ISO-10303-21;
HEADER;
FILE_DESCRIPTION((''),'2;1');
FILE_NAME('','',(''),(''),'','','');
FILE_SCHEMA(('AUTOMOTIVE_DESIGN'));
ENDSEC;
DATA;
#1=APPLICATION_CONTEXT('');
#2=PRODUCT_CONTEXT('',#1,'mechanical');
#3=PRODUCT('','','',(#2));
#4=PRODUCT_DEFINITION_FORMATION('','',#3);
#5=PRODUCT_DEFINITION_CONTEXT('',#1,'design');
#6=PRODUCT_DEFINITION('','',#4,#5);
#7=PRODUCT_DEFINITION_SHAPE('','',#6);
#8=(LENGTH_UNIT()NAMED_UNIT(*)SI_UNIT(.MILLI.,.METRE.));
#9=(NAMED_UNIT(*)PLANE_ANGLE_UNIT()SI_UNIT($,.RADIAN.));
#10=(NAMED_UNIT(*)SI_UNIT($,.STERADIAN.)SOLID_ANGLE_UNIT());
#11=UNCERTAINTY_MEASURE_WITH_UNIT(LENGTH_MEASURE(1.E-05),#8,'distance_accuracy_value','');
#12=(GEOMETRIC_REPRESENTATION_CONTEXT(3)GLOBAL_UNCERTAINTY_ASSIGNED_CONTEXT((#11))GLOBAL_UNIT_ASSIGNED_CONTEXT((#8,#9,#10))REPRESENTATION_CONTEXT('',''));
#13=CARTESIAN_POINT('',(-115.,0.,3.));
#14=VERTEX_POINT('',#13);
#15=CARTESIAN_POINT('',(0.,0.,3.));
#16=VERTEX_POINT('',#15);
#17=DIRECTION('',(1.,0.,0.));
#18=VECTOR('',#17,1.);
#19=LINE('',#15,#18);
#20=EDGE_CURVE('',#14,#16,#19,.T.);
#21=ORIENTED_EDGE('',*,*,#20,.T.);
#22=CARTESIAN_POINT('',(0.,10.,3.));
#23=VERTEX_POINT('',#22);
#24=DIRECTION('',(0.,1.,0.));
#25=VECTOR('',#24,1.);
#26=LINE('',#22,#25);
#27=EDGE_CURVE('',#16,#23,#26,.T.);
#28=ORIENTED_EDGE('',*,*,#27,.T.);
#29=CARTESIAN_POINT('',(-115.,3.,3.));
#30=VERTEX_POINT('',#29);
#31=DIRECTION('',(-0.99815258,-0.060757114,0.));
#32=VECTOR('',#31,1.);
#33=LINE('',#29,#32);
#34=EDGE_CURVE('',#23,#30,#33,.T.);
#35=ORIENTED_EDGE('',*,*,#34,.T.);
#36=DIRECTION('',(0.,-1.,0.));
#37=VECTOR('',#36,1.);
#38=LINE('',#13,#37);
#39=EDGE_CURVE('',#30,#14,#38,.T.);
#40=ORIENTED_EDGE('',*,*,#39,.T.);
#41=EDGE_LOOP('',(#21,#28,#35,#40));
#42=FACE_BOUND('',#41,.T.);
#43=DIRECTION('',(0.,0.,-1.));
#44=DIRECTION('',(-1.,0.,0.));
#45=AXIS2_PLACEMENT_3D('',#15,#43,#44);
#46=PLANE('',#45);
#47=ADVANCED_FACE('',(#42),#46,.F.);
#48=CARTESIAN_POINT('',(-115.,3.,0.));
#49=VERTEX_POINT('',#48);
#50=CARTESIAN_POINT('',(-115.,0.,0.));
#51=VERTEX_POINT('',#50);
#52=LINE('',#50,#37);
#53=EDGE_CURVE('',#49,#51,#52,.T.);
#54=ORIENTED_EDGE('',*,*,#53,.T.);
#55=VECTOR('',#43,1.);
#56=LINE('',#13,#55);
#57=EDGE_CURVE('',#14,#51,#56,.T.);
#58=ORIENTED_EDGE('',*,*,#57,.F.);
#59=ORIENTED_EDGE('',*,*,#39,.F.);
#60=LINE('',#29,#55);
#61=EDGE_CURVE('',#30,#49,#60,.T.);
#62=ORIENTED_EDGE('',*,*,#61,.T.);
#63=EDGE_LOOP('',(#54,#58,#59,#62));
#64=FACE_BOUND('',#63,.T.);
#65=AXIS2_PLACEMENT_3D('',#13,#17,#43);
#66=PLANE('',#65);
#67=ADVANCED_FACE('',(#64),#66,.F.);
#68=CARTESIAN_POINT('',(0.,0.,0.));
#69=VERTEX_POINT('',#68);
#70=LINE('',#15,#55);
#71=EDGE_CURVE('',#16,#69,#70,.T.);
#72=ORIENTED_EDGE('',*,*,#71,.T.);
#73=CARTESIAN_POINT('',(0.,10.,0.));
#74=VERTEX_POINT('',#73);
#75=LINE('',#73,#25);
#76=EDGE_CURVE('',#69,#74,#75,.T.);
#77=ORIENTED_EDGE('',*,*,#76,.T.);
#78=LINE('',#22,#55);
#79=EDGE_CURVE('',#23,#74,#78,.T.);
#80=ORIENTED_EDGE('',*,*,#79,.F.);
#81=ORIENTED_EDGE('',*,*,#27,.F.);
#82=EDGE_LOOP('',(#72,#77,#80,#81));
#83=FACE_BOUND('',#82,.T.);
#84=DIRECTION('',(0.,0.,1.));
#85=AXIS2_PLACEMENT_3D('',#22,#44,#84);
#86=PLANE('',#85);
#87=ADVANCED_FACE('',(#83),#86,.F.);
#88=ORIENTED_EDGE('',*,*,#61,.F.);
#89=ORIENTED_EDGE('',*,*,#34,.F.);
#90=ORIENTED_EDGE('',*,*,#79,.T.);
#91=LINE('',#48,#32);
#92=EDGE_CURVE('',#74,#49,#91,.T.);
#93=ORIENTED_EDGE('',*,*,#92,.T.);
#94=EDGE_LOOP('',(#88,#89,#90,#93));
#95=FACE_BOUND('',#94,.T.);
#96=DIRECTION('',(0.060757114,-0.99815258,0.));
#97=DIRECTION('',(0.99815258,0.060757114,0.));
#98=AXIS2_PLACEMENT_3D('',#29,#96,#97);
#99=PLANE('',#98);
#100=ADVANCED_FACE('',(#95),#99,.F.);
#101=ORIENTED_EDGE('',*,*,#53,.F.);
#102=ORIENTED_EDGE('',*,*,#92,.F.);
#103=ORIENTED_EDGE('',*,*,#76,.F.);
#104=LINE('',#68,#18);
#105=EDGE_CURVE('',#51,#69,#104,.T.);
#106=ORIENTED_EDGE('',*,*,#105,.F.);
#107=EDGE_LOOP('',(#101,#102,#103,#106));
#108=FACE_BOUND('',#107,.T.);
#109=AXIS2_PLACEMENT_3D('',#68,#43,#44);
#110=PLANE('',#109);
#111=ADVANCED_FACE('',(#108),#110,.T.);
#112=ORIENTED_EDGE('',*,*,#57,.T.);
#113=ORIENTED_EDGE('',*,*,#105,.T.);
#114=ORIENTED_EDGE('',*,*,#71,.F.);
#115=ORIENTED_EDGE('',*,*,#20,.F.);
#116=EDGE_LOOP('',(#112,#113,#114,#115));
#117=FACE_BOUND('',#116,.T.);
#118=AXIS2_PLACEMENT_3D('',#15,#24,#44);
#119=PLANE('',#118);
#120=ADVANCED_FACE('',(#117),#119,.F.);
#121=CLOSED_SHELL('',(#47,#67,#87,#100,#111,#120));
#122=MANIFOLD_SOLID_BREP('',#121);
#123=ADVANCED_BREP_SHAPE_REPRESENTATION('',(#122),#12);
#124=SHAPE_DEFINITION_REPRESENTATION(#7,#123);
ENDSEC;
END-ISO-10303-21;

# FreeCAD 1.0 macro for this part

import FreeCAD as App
import Part
import Sketcher

V = App.Vector
Q = App.Units.Quantity

doc = App.newDocument("Part")
body = doc.addObject("PartDesign::Body", "Body")

# Sketch on XY plane
sketch1 = doc.addObject("Sketcher::SketchObject", "Sketch")
body.addObject(sketch1)
sketch1.AttachmentSupport = (doc.XY_Plane, [""])
sketch1.MapMode = "FlatFace"
sketch1.addGeometry(Part.LineSegment(V(-115, 0, 0), V(0, 0, 0)), False)
sketch1.addGeometry(Part.LineSegment(V(0, 0, 0), V(0, 10, 0)), False)
sketch1.addGeometry(Part.LineSegment(V(0, 10, 0), V(-115, 3, 0)), False)
sketch1.addGeometry(Part.LineSegment(V(-115, 3, 0), V(-115, 0, 0)), False)
sketch1.addConstraint(Sketcher.Constraint("Coincident", 0, 2, 1, 1))
sketch1.addConstraint(Sketcher.Constraint("Coincident", 1, 2, 2, 1))
sketch1.addConstraint(Sketcher.Constraint("Coincident", 2, 2, 3, 1))
sketch1.addConstraint(Sketcher.Constraint("Coincident", 3, 2, 0, 1))
sketch1.addConstraint(Sketcher.Constraint("Horizontal", 0))
sketch1.addConstraint(Sketcher.Constraint("Vertical", 1))
sketch1.addConstraint(Sketcher.Constraint("Vertical", 3))
sketch1.addConstraint(Sketcher.Constraint("Coincident", 0, 2, -1, 1))
sketch1.addConstraint(Sketcher.Constraint("DistanceX", 0, 1, 0, 2, Q("115 mm")))
sketch1.addConstraint(Sketcher.Constraint("DistanceY", 1, 1, 1, 2, Q("10 mm")))
sketch1.addConstraint(Sketcher.Constraint("DistanceY", 3, 2, 3, 1, Q("3 mm")))
pad1 = doc.addObject("PartDesign::Pad", "Pad")
body.addObject(pad1)
pad1.Profile = sketch1
pad1.Length = 3

doc.recompute()
